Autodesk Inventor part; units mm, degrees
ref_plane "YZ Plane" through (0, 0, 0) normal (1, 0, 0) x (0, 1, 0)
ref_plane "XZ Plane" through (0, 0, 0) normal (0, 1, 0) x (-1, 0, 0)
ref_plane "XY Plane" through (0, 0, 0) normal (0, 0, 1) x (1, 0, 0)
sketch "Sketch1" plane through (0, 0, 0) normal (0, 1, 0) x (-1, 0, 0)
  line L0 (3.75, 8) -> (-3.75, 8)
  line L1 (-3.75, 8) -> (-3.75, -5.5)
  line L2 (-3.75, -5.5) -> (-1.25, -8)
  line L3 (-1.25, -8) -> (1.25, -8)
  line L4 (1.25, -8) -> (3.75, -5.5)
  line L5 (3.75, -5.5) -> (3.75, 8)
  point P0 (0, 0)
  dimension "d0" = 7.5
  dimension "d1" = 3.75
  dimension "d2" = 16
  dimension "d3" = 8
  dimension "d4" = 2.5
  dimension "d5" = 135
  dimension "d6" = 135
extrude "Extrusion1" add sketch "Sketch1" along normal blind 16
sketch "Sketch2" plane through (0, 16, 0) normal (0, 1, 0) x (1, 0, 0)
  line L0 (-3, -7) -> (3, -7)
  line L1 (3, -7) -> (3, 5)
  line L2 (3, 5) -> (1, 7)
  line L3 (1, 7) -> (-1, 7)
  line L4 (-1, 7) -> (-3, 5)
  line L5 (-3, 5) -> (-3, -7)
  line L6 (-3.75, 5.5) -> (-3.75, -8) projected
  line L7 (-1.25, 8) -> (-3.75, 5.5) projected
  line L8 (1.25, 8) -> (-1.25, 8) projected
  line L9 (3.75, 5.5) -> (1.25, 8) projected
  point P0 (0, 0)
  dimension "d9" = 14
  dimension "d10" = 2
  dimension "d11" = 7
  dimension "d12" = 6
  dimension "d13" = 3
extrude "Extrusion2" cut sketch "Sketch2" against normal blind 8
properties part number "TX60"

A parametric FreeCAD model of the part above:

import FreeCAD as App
import Part
import Sketcher
Q = App.Units.Quantity

doc = App.newDocument("Part")
body = doc.addObject("PartDesign::Body", "Body")

# Sketch on XZ plane
sketch1 = body.newObject("Sketcher::SketchObject", "Sketch")
sketch1.AttachmentSupport = (doc.getObject("XZ_Plane"), [""])
sketch1.MapMode = "FlatFace"
sketch1.addGeometry(Part.LineSegment(App.Vector(-3.75, -5.5, 0), App.Vector(-3.75, 8, 0)), False)
sketch1.addGeometry(Part.LineSegment(App.Vector(-3.75, 8, 0), App.Vector(3.75, 8, 0)), False)
sketch1.addGeometry(Part.LineSegment(App.Vector(3.75, 8, 0), App.Vector(3.75, -5.5, 0)), False)
sketch1.addGeometry(Part.LineSegment(App.Vector(3.75, -5.5, 0), App.Vector(1.25, -8, 0)), False)
sketch1.addGeometry(Part.LineSegment(App.Vector(1.25, -8, 0), App.Vector(-1.25, -8, 0)), False)
sketch1.addGeometry(Part.LineSegment(App.Vector(-1.25, -8, 0), App.Vector(-3.75, -5.5, 0)), False)
sketch1.addConstraint(Sketcher.Constraint("Coincident", 0, 2, 1, 1))
sketch1.addConstraint(Sketcher.Constraint("Coincident", 1, 2, 2, 1))
sketch1.addConstraint(Sketcher.Constraint("Coincident", 2, 2, 3, 1))
sketch1.addConstraint(Sketcher.Constraint("Coincident", 3, 2, 4, 1))
sketch1.addConstraint(Sketcher.Constraint("Coincident", 4, 2, 5, 1))
sketch1.addConstraint(Sketcher.Constraint("Coincident", 5, 2, 0, 1))
sketch1.addConstraint(Sketcher.Constraint("Vertical", 0))
sketch1.addConstraint(Sketcher.Constraint("Horizontal", 1))
sketch1.addConstraint(Sketcher.Constraint("Vertical", 2))
sketch1.addConstraint(Sketcher.Constraint("Horizontal", 4))
sketch1.addConstraint(Sketcher.Constraint("Symmetric", 2, 2, 5, 2, -2))
sketch1.addConstraint(Sketcher.Constraint("Perpendicular", 3, 5))
sketch1.addConstraint(Sketcher.Constraint("Equal", 3, 5))
sketch1.addConstraint(Sketcher.Constraint("DistanceX", 1, 1, 1, 2, Q("7.5 mm")))
sketch1.addConstraint(Sketcher.Constraint("DistanceX", 4, 2, 4, 1, Q("2.5 mm")))
sketch1.addConstraint(Sketcher.Constraint("DistanceY", -1, 1, 0, 2, Q("8 mm")))
sketch1.addConstraint(Sketcher.Constraint("DistanceY", 3, 2, -1, 1, Q("8 mm")))
pad1 = body.newObject("PartDesign::Pad", "Pad")
pad1.Profile = sketch1
pad1.Length = 16
pad1.Reversed = True

# Sketch on XZ plane
sketch2 = body.newObject("Sketcher::SketchObject", "Sketch001")
sketch2.AttachmentSupport = (doc.getObject("XZ_Plane"), [""])
sketch2.MapMode = "FlatFace"
sketch2.AttachmentOffset = App.Placement(App.Vector(0, 0, -16), App.Rotation())
sketch2.addGeometry(Part.LineSegment(App.Vector(-3, -5, 0), App.Vector(-3, 7, 0)), False)
sketch2.addGeometry(Part.LineSegment(App.Vector(-3, 7, 0), App.Vector(3, 7, 0)), False)
sketch2.addGeometry(Part.LineSegment(App.Vector(3, 7, 0), App.Vector(3, -5, 0)), False)
sketch2.addGeometry(Part.LineSegment(App.Vector(3, -5, 0), App.Vector(1, -7, 0)), False)
sketch2.addGeometry(Part.LineSegment(App.Vector(1, -7, 0), App.Vector(-1, -7, 0)), False)
sketch2.addGeometry(Part.LineSegment(App.Vector(-1, -7, 0), App.Vector(-3, -5, 0)), False)
sketch2.addConstraint(Sketcher.Constraint("Coincident", 0, 2, 1, 1))
sketch2.addConstraint(Sketcher.Constraint("Coincident", 1, 2, 2, 1))
sketch2.addConstraint(Sketcher.Constraint("Coincident", 2, 2, 3, 1))
sketch2.addConstraint(Sketcher.Constraint("Coincident", 3, 2, 4, 1))
sketch2.addConstraint(Sketcher.Constraint("Coincident", 4, 2, 5, 1))
sketch2.addConstraint(Sketcher.Constraint("Coincident", 5, 2, 0, 1))
sketch2.addConstraint(Sketcher.Constraint("Vertical", 0))
sketch2.addConstraint(Sketcher.Constraint("Horizontal", 1))
sketch2.addConstraint(Sketcher.Constraint("Vertical", 2))
sketch2.addConstraint(Sketcher.Constraint("Horizontal", 4))
sketch2.addConstraint(Sketcher.Constraint("Symmetric", 2, 2, 5, 2, -2))
sketch2.addConstraint(Sketcher.Constraint("Perpendicular", 3, 5))
sketch2.addConstraint(Sketcher.Constraint("Equal", 3, 5))
sketch2.addConstraint(Sketcher.Constraint("DistanceX", 1, 1, 1, 2, Q("6 mm")))
sketch2.addConstraint(Sketcher.Constraint("DistanceX", 4, 2, 4, 1, Q("2 mm")))
sketch2.addConstraint(Sketcher.Constraint("DistanceY", -1, 1, 0, 2, Q("7 mm")))
sketch2.addConstraint(Sketcher.Constraint("DistanceY", 3, 2, -1, 1, Q("7 mm")))
pocket1 = body.newObject("PartDesign::Pocket", "Pocket")
pocket1.Profile = sketch2
pocket1.Length = 8
pocket1.Reversed = True

doc.recompute()
